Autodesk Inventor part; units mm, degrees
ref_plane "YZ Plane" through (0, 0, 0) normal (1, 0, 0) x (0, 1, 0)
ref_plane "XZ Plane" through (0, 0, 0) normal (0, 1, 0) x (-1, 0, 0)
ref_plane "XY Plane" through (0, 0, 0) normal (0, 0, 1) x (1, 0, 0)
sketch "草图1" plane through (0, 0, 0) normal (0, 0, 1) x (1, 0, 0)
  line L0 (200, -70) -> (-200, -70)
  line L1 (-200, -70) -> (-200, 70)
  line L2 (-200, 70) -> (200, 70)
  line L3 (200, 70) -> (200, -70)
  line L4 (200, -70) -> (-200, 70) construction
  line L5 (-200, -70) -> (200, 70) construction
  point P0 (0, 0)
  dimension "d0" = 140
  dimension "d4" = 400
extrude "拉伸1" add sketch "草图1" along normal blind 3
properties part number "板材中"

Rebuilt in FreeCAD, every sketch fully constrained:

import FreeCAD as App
import Part
import Sketcher

V = App.Vector


def add_polygon(sketch, points):
    """Adds a closed chain of lines whose ends are joined by coincident constraints."""
    first, n = sketch.GeometryCount, len(points)
    for a, b in zip(points, points[1:] + points[:1]):
        sketch.addGeometry(Part.LineSegment(App.Vector(*a, 0), App.Vector(*b, 0)), False)
    for i in range(n):
        sketch.addConstraint(Sketcher.Constraint("Coincident", first + i, 2, first + (i + 1) % n, 1))

doc = App.newDocument("Part")
params = doc.addObject("Spreadsheet::Sheet", "Params")
for row, (alias, value) in enumerate([
    ("sketch1_width", "400 mm"),
    ("sketch1_height", "140 mm"),
    ("pad1_length", "3 mm"),
], start=1):
    params.set(f"A{row}", alias)
    params.set(f"B{row}", "=" + value)
    params.setAlias(f"B{row}", alias)

body = doc.addObject("PartDesign::Body", "Body")

sketch1 = doc.addObject("Sketcher::SketchObject", "Sketch")
body.addObject(sketch1)
sketch1.AttachmentSupport = (doc.XY_Plane, [""])
sketch1.MapMode = "FlatFace"
add_polygon(sketch1, [(-200, -70), (200, -70), (200, 70), (-200, 70)])
sketch1.addConstraint([
    Sketcher.Constraint("Horizontal", 0),
    Sketcher.Constraint("Vertical", 1),
    Sketcher.Constraint("Horizontal", 2),
    Sketcher.Constraint("Vertical", 3),
    Sketcher.Constraint("Symmetric", 0, 2, 2, 2, -1, 1),
    Sketcher.Constraint("DistanceX", 0, 1, 0, 2, 400.0),
    Sketcher.Constraint("DistanceY", 1, 1, 1, 2, 140.0),
])
sketch1.setExpression("Constraints[9]", "Params.sketch1_width")
sketch1.setExpression("Constraints[10]", "Params.sketch1_height")
pad1 = doc.addObject("PartDesign::Pad", "Pad")
body.addObject(pad1)
pad1.Profile = sketch1
pad1.setExpression("Length", "Params.pad1_length")

doc.recompute()
